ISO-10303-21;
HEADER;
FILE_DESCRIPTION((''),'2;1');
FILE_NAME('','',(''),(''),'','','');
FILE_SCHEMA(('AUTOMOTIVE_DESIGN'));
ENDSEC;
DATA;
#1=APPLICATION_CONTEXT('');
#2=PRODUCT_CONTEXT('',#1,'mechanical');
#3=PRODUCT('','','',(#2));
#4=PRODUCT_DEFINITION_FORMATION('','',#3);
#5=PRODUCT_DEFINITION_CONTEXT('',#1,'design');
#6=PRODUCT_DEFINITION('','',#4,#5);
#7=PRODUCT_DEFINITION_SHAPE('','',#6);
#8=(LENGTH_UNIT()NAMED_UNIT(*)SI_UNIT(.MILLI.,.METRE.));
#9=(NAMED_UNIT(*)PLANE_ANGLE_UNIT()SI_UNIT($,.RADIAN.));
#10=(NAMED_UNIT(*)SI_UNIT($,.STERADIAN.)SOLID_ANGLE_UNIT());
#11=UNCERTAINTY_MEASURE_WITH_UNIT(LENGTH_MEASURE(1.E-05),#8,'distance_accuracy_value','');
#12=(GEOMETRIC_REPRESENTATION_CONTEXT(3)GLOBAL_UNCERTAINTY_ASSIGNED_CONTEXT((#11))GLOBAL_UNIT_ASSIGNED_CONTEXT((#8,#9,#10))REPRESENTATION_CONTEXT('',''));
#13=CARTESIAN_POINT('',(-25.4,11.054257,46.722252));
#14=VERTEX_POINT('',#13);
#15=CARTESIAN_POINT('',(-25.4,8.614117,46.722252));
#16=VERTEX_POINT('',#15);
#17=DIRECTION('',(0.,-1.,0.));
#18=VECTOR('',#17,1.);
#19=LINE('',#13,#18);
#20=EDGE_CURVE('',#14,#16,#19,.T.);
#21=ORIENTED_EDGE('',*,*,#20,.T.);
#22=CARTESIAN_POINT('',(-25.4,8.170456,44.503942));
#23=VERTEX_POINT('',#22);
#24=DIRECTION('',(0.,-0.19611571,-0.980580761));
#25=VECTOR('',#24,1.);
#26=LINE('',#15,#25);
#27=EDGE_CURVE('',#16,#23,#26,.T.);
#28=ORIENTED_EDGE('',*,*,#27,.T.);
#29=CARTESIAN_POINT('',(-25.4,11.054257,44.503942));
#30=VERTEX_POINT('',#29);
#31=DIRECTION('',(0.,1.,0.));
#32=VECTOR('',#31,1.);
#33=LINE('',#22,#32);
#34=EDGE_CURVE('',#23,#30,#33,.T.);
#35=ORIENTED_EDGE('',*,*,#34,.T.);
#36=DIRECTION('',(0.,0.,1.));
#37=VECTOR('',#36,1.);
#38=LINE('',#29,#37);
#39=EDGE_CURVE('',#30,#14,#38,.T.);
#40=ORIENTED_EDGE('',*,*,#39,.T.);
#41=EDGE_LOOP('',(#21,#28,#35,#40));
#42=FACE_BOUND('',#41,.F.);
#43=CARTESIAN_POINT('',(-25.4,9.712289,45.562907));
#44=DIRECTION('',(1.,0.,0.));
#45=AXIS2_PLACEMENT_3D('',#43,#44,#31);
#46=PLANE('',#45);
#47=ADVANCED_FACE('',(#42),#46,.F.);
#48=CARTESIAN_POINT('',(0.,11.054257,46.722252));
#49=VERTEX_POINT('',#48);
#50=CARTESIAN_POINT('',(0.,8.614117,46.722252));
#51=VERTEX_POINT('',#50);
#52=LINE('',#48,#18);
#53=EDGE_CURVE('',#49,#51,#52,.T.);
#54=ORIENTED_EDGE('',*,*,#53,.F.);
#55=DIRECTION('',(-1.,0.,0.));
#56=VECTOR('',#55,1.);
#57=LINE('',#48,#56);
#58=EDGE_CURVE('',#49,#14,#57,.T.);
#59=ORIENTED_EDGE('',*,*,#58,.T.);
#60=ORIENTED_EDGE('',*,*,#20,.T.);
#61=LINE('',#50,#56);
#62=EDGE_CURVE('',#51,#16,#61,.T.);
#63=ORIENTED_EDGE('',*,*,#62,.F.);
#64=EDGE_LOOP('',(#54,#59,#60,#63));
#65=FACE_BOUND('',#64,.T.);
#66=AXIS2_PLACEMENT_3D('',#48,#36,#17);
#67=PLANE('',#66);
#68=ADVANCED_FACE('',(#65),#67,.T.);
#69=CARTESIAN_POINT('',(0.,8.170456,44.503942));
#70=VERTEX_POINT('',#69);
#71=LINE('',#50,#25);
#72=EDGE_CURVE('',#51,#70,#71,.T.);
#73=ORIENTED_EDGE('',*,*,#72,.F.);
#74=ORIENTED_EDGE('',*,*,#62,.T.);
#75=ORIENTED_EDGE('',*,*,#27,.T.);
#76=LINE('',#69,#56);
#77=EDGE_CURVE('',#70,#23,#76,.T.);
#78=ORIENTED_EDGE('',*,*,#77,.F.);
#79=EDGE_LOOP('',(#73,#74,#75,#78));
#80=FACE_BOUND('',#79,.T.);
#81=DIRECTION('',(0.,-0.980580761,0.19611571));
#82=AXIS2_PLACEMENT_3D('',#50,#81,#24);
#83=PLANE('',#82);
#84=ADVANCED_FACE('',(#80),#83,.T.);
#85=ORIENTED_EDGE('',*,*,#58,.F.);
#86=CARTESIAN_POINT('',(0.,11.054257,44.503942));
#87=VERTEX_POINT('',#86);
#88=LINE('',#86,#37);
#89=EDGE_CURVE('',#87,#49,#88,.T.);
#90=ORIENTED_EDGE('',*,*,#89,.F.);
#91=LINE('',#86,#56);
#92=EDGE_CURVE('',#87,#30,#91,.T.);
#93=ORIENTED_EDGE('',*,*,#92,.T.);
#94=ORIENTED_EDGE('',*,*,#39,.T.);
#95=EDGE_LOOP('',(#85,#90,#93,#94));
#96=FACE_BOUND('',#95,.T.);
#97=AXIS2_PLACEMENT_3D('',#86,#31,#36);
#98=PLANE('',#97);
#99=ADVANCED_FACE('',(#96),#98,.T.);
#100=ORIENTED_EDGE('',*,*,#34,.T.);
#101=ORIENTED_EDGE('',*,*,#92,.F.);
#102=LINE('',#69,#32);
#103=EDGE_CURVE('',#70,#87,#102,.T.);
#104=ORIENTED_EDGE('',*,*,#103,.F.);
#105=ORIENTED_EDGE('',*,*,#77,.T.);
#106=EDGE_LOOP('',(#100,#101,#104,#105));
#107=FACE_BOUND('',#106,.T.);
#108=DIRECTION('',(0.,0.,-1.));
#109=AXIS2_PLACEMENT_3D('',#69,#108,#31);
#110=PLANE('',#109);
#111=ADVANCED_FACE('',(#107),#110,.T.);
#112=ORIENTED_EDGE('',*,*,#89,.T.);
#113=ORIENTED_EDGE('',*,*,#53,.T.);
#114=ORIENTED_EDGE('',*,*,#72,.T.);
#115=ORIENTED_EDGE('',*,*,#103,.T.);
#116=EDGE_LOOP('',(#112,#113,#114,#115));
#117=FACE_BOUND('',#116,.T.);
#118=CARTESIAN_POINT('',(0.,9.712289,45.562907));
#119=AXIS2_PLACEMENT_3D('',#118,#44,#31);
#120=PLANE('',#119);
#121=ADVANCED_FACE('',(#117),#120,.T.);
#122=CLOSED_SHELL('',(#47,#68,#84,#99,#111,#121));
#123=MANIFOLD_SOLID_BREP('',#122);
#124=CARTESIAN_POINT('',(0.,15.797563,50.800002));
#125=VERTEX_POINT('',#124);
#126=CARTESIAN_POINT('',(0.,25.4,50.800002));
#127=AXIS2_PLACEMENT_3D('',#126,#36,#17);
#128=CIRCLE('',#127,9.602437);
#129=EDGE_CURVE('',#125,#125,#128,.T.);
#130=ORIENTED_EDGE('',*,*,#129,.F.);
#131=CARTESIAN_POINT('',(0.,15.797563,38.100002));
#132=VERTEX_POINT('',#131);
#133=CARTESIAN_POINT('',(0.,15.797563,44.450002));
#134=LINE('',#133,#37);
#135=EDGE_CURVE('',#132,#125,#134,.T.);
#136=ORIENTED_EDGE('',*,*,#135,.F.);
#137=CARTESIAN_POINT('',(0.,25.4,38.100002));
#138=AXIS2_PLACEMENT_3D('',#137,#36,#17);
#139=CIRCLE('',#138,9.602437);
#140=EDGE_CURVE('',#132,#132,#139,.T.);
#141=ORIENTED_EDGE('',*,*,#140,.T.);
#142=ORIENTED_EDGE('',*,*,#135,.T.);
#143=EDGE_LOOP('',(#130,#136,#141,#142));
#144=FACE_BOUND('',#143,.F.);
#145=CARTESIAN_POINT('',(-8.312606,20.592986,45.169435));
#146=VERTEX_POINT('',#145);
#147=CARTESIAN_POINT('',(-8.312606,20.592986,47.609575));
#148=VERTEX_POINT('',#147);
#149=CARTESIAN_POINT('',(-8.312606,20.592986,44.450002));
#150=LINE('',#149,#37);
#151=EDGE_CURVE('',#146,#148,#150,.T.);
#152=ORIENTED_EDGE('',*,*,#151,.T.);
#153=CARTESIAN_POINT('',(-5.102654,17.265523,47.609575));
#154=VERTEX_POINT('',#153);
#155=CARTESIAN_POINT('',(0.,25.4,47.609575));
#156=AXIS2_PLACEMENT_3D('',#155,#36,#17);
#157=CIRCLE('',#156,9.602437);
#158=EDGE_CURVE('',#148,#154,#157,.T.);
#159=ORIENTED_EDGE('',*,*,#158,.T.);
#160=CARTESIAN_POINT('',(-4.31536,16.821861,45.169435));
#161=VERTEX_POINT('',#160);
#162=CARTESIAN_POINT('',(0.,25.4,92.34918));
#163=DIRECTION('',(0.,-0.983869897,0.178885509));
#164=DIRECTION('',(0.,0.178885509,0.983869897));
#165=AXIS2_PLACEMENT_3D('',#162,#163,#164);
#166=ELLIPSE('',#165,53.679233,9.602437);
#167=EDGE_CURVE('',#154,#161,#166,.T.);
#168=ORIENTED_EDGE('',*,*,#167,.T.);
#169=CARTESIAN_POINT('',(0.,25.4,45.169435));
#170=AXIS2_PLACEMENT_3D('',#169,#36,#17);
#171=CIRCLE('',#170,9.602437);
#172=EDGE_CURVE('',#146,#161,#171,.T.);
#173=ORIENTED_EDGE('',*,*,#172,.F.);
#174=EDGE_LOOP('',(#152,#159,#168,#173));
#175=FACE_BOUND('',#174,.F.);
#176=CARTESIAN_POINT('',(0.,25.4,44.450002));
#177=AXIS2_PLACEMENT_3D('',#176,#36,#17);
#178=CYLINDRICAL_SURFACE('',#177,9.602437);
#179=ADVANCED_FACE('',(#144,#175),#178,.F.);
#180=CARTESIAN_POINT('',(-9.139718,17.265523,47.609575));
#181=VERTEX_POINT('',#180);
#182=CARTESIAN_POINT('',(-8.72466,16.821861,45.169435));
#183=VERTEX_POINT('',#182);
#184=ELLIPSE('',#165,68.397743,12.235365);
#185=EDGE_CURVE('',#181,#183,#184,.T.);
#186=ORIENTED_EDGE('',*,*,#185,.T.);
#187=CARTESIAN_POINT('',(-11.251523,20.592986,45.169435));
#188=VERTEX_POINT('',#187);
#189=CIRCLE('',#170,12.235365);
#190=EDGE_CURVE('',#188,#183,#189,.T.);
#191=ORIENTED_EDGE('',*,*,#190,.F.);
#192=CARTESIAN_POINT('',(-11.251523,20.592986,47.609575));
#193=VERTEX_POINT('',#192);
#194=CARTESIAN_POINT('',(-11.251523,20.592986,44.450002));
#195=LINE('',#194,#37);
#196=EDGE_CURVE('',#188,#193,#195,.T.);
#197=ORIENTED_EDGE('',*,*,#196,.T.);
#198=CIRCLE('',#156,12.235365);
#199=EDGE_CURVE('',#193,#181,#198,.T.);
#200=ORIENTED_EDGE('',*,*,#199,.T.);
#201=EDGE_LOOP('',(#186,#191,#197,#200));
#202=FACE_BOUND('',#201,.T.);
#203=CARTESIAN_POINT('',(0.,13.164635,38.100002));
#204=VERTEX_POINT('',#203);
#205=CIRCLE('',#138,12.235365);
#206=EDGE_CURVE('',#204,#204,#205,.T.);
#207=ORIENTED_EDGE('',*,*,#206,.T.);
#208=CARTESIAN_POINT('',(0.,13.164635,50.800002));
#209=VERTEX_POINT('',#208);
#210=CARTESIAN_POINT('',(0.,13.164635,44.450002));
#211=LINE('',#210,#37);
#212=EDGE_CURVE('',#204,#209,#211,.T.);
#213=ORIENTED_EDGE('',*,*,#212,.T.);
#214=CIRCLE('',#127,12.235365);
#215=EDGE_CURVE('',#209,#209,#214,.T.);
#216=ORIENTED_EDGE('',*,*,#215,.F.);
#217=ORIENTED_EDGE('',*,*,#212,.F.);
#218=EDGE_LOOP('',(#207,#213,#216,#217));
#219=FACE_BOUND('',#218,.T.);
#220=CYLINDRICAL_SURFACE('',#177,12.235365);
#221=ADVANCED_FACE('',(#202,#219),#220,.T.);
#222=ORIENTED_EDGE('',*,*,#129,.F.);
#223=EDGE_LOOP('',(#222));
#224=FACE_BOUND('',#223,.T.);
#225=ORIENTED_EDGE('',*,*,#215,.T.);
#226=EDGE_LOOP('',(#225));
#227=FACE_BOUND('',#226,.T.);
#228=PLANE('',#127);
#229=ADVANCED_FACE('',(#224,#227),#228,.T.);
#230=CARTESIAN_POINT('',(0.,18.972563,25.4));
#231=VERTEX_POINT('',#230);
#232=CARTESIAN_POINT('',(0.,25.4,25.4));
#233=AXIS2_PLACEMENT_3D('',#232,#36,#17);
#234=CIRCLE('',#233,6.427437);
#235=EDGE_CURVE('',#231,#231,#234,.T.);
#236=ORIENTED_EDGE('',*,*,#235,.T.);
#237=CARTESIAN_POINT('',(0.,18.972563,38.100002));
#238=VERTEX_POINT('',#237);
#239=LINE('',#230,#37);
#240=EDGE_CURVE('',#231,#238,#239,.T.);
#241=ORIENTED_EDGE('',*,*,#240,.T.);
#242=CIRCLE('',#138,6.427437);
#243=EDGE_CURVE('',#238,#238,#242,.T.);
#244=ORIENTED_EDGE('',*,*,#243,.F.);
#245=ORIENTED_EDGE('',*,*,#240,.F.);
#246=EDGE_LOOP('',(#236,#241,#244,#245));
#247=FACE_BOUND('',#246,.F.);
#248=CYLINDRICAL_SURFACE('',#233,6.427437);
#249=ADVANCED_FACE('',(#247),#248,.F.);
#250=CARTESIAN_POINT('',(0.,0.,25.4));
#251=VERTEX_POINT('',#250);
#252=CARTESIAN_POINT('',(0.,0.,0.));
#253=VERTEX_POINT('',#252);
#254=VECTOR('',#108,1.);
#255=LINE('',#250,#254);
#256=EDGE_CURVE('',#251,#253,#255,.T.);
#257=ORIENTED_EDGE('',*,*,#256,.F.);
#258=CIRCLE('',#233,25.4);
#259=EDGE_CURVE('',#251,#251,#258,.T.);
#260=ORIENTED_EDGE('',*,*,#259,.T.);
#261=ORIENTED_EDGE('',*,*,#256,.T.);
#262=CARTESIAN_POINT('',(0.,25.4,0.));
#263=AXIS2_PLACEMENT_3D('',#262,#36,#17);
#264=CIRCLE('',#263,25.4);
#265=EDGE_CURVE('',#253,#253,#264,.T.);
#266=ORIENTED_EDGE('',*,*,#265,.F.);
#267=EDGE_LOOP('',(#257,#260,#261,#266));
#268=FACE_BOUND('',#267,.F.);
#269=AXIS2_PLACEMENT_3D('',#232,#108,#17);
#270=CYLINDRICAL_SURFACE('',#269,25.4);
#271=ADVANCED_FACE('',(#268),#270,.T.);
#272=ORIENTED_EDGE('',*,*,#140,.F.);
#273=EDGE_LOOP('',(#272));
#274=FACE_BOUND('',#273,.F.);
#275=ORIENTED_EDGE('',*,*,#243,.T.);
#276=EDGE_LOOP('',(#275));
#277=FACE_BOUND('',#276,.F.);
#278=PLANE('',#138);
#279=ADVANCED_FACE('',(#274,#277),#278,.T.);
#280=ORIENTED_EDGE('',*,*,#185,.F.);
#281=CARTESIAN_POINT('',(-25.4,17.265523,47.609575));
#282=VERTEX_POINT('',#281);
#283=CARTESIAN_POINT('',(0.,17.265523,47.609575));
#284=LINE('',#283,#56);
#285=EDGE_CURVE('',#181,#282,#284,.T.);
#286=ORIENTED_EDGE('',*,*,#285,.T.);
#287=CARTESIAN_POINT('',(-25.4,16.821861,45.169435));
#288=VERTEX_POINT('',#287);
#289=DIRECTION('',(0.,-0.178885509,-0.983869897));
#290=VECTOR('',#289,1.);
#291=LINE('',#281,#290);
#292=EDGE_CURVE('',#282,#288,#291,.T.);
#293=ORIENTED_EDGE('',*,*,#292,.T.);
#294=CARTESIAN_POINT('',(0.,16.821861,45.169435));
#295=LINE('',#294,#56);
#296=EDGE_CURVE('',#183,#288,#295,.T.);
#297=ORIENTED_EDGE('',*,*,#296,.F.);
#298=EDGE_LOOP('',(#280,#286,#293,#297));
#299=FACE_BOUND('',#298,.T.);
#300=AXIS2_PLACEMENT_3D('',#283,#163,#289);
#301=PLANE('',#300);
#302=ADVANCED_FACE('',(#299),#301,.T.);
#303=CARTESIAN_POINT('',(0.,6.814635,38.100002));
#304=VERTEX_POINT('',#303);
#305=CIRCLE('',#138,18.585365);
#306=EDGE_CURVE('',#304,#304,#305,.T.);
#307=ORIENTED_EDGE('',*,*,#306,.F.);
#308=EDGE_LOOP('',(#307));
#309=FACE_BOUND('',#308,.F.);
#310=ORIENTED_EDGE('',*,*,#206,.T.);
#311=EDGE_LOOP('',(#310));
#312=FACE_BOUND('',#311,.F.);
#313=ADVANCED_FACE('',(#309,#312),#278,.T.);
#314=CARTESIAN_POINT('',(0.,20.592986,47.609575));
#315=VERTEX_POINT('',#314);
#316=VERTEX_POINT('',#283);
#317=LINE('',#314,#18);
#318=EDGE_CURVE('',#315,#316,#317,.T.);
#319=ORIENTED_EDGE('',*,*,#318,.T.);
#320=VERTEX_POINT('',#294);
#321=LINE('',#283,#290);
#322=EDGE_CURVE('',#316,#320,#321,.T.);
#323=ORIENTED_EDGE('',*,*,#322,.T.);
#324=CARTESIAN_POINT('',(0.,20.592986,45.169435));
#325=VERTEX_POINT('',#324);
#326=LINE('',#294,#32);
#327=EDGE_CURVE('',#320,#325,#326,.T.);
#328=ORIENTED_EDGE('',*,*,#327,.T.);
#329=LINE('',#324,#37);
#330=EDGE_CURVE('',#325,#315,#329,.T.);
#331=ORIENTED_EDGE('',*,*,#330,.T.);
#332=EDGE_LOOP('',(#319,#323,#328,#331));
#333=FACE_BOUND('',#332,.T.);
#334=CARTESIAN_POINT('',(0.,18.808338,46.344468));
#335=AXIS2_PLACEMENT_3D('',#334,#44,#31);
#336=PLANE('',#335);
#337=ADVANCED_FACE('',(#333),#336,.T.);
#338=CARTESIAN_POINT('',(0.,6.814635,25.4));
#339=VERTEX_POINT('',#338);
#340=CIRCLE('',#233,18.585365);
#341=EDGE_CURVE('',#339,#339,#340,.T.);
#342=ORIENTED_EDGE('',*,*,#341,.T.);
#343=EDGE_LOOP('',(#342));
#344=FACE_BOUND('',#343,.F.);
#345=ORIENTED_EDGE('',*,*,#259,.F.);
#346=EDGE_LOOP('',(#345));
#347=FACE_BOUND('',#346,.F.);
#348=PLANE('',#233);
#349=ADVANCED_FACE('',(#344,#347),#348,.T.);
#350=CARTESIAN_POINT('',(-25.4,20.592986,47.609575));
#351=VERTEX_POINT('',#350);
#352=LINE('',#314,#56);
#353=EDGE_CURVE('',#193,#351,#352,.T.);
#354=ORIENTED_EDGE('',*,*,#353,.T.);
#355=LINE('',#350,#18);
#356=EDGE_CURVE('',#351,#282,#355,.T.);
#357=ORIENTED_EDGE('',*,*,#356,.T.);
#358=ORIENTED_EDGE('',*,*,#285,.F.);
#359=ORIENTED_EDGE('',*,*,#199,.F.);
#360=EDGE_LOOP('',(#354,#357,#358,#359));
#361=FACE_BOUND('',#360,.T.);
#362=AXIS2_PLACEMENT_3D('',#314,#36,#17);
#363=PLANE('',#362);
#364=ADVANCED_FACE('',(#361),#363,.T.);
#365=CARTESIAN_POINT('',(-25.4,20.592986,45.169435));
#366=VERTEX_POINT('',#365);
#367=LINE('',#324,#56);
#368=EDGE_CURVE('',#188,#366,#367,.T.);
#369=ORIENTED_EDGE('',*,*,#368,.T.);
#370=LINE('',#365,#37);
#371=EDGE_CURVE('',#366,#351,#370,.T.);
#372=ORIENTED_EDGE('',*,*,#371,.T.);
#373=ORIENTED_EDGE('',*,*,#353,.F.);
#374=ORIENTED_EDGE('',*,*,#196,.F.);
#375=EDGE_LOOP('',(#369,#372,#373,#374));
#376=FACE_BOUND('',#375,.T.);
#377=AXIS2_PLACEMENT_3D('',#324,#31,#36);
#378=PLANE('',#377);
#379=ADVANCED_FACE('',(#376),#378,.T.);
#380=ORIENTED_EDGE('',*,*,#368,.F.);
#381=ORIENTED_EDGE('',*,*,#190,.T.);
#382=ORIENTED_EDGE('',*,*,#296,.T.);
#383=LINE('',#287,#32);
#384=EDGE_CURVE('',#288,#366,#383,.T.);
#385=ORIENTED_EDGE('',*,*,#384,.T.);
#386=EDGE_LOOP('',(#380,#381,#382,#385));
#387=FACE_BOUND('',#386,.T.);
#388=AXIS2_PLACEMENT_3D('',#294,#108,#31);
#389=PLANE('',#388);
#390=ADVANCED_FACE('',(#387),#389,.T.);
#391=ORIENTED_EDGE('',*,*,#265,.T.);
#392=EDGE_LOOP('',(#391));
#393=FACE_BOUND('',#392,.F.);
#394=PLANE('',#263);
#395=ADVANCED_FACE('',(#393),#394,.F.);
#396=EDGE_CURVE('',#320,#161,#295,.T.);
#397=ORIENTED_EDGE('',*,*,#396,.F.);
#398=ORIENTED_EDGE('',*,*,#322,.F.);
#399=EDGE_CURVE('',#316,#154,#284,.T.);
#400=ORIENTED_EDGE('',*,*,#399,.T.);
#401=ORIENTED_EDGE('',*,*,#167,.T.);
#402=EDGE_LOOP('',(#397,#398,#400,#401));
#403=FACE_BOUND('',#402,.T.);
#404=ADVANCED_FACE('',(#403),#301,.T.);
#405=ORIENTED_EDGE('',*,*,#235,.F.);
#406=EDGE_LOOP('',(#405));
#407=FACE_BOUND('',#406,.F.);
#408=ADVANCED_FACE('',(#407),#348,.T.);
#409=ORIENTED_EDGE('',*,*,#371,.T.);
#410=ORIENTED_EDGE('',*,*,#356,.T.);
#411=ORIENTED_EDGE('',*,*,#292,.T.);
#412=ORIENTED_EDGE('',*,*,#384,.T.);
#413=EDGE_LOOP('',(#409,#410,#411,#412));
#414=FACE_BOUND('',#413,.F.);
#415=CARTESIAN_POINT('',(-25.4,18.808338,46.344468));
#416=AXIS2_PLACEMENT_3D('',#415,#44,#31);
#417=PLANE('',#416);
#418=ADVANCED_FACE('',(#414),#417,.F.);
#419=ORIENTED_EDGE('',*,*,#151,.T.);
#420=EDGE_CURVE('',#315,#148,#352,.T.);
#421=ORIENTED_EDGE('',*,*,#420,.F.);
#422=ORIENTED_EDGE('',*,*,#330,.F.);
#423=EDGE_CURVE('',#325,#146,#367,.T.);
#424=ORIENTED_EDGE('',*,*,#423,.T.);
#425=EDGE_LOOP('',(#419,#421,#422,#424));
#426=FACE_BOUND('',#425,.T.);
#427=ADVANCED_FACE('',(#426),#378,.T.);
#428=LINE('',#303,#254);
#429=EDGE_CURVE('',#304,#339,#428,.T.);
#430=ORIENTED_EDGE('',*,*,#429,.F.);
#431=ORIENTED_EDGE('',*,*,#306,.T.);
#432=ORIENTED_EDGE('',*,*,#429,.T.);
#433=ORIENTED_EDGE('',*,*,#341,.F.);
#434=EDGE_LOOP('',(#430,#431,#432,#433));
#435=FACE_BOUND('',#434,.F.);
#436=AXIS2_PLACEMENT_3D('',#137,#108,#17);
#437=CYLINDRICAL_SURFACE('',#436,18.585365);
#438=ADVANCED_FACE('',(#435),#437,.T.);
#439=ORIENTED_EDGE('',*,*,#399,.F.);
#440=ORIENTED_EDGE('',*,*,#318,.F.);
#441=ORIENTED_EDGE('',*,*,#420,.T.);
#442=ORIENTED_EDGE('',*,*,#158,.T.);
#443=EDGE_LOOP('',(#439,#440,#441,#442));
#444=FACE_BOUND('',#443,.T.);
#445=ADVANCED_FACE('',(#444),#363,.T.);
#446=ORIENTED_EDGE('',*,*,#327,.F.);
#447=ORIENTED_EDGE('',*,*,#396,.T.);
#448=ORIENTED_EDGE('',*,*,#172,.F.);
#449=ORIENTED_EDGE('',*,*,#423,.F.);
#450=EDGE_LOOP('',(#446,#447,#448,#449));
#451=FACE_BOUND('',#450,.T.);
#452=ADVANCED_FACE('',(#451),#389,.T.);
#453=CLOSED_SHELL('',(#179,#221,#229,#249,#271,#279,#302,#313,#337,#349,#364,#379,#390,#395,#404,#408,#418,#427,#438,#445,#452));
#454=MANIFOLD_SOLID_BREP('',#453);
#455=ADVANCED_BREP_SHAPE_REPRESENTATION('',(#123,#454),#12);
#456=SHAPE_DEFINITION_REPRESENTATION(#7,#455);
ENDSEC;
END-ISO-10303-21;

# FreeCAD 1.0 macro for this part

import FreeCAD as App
import Part
import Sketcher
from FreeCAD import Vector
Q = App.Units.Quantity


def add_polygon(sketch, points):
    """Adds a closed chain of lines whose ends are joined by coincident constraints."""
    first, n = sketch.GeometryCount, len(points)
    for a, b in zip(points, points[1:] + points[:1]):
        sketch.addGeometry(Part.LineSegment(App.Vector(*a, 0), App.Vector(*b, 0)), False)
    for i in range(n):
        sketch.addConstraint(Sketcher.Constraint("Coincident", first + i, 2, first + (i + 1) % n, 1))

doc = App.newDocument("Part")
body = doc.addObject("PartDesign::Body", "Body")
body.AllowCompound = True

# Sketch on YZ plane
sketch1 = body.newObject("Sketcher::SketchObject", "Sketch")
sketch1.AttachmentSupport = (doc.getObject("YZ_Plane"), [""])
sketch1.MapMode = "FlatFace"
add_polygon(sketch1, [(13.2, 50.8), (13.2, 38.1), (6.8, 38.1), (6.8, 25.4), (0, 25.4), (0, 0), (25.4, 0), (25.4, 25.4), (19, 25.4), (19, 38.1), (15.8, 38.1), (15.8, 50.8)])  # lines 0-11
sketch1.addGeometry(Part.LineSegment(Vector(25.4, 0, 0), Vector(25.4, 50.8, 0)), True)  # axis
sketch1.addConstraint([
    Sketcher.Constraint("Vertical", 0),
    Sketcher.Constraint("Horizontal", 1),
    Sketcher.Constraint("Vertical", 2),
    Sketcher.Constraint("Horizontal", 3),
    Sketcher.Constraint("Vertical", 4),
    Sketcher.Constraint("Horizontal", 5),
    Sketcher.Constraint("Vertical", 6),
    Sketcher.Constraint("Horizontal", 7),
    Sketcher.Constraint("Vertical", 8),
    Sketcher.Constraint("Horizontal", 9),
    Sketcher.Constraint("Vertical", 10),
    Sketcher.Constraint("Horizontal", 11),
    Sketcher.Constraint("Vertical", 12),
    Sketcher.Constraint("Coincident", 4, 2, -1, 1),
    Sketcher.Constraint("Coincident", 12, 1, 5, 2),
    Sketcher.Constraint("Horizontal", 3, 2, 6, 2),
    Sketcher.Constraint("Horizontal", 1, 2, 8, 2),
    Sketcher.Constraint("Horizontal", 11, 2, 12, 2),
    Sketcher.Constraint("Equal", 5, 4),
    Sketcher.Constraint("DistanceX", 5, 1, 5, 2, Q("1 in")),
    Sketcher.Constraint("DistanceY", 12, 1, 12, 2, Q("2.0000001 in")),
    Sketcher.Constraint("DistanceY", 0, 2, 0, 1, Q("0.5 in")),
    Sketcher.Constraint("DistanceX", 1, 2, 1, 1, Q("0.25 in")),
    Sketcher.Constraint("DistanceX", 9, 2, 9, 1, Q("0.125 in")),
    Sketcher.Constraint("DistanceX", 3, 2, 3, 1, 6.814635),
    Sketcher.Constraint("DistanceX", 7, 2, 7, 1, 6.427437),
])
revolution = body.newObject("PartDesign::Revolution", "Revolution")
revolution.Profile = sketch1
revolution.ReferenceAxis = (sketch1, ["Axis0"])
revolution.Angle = 360

# Sketch on YZ plane
sketch2 = body.newObject("Sketcher::SketchObject", "Sketch001")
sketch2.AttachmentSupport = (doc.getObject("YZ_Plane"), [""])
sketch2.MapMode = "FlatFace"
add_polygon(sketch2, [(11.1, 46.7), (8.6, 46.7), (8.2, 44.5), (11.1, 44.5)])  # lines 0-3
add_polygon(sketch2, [(20.6, 47.6), (17.3, 47.6), (16.8, 45.2), (20.6, 45.2)])  # lines 4-7
sketch2.addConstraint([
    Sketcher.Constraint("Horizontal", 0),
    Sketcher.Constraint("Horizontal", 2),
    Sketcher.Constraint("Vertical", 3),
    Sketcher.Constraint("Horizontal", 4),
    Sketcher.Constraint("Horizontal", 6),
    Sketcher.Constraint("Vertical", 7),
    Sketcher.Constraint("Equal", 0, 7),
    Sketcher.Constraint("DistanceX", 2, 1, 2, 2, 2.883801),
    Sketcher.Constraint("DistanceX", 0, 2, 0, 1, 2.44014),
    Sketcher.Constraint("DistanceY", 3, 1, 3, 2, 2.21831),
    Sketcher.Constraint("DistanceX", 4, 2, 4, 1, 3.327463),
    Sketcher.Constraint("DistanceX", 6, 1, 6, 2, 3.771125),
    Sketcher.Constraint("DistanceY", -1, 1, 0, 2, 46.722252),
    Sketcher.Constraint("DistanceX", -1, 1, 5, 2, 16.821861),
    Sketcher.Constraint("DistanceX", 2, 2, 6, 2, 9.538729),
    Sketcher.Constraint("DistanceY", -1, 1, 4, 2, 47.609575),
])
pad1 = body.newObject("PartDesign::Pad", "Pad")
pad1.Profile = sketch2
pad1.Length = Q("1 in")
pad1.Reversed = True

doc.recompute()
